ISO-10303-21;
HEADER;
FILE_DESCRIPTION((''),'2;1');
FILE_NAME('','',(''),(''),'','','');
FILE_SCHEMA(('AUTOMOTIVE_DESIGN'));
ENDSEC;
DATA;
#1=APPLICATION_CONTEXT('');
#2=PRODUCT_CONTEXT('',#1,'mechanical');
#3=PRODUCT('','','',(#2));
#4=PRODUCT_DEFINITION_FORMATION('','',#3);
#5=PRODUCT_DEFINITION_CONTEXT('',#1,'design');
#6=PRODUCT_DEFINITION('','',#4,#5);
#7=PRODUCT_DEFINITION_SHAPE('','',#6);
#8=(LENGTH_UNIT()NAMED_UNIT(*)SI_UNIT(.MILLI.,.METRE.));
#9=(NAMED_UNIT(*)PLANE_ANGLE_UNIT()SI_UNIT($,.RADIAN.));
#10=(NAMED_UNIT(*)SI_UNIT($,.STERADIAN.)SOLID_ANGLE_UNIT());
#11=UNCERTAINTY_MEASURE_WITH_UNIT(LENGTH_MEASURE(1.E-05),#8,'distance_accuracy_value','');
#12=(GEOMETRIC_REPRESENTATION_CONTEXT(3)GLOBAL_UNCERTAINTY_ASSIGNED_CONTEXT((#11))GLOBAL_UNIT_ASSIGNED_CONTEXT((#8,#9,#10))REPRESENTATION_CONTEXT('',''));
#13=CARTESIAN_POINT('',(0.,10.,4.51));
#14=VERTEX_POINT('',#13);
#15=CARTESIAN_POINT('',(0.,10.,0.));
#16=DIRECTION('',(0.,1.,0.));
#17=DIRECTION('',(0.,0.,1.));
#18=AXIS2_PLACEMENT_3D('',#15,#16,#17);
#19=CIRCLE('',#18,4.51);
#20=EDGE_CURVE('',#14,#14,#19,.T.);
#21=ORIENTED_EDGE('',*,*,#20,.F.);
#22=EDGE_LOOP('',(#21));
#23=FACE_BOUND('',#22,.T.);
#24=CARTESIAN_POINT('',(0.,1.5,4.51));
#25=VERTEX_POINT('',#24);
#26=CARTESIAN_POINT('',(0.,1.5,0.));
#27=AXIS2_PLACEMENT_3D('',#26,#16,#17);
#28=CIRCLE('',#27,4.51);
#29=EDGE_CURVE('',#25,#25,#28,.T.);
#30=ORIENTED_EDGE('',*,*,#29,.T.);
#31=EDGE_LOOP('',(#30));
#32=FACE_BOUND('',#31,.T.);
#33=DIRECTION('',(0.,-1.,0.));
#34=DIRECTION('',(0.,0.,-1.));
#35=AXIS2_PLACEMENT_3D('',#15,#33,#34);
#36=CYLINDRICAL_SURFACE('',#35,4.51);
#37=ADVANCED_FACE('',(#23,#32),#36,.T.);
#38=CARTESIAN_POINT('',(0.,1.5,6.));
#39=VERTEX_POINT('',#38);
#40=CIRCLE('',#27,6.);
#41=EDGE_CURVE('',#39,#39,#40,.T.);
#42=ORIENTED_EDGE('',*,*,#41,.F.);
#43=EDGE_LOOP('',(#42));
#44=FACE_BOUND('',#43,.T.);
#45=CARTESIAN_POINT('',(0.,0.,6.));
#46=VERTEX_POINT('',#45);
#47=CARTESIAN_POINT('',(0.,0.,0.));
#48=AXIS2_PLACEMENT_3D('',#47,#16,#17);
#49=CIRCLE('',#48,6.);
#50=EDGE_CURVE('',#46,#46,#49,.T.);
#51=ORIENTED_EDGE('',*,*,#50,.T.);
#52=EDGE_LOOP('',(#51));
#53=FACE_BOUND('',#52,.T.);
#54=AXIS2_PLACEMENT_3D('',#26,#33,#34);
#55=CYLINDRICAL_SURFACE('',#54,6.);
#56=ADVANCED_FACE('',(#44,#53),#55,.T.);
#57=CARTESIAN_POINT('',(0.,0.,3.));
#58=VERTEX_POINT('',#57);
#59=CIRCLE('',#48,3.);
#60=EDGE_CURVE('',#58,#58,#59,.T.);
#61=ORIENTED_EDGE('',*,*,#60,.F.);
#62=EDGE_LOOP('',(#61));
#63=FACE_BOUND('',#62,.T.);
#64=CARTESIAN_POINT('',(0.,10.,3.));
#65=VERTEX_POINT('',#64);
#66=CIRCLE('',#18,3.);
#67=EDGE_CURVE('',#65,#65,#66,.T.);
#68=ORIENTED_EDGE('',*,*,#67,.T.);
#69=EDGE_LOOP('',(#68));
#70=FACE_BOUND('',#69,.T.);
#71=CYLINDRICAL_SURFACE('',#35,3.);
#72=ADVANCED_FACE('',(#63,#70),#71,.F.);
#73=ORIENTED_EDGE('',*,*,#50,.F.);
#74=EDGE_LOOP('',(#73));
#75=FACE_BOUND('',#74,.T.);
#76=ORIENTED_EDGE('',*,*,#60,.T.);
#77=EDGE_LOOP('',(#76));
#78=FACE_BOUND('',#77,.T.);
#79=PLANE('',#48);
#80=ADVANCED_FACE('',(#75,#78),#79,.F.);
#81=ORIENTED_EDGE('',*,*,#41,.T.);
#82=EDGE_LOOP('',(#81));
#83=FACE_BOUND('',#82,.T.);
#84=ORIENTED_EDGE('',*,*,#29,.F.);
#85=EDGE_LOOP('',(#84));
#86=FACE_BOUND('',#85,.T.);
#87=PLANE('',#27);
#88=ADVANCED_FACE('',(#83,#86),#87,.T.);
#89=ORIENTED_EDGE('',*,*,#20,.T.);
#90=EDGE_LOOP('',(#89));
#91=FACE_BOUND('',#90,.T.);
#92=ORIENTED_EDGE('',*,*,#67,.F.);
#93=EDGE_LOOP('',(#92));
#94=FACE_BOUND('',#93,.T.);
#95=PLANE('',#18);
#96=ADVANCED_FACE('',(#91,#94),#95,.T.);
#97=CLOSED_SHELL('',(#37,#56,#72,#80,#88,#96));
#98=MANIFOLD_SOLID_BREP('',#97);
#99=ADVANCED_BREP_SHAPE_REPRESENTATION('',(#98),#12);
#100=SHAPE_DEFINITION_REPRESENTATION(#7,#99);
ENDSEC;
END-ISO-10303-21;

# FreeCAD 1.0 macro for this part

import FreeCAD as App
import Part
import Sketcher
from FreeCAD import Vector

doc = App.newDocument("Part")
body = doc.addObject("PartDesign::Body", "Body")

sketch1 = body.newObject("Sketcher::SketchObject", "Sketch")
sketch1.AttachmentSupport = (doc.getObject("XZ_Plane"), [""])
sketch1.MapMode = "FlatFace"
sketch1.addGeometry([
    Part.Circle(Vector(0, 0, 0), Vector(0, 0, 1), 4.5),
    Part.Circle(Vector(0, 0, 0), Vector(0, 0, 1), 3),
], False)
sketch1.addConstraint([
    Sketcher.Constraint("Coincident", 0, 3, -1, 1),
    Sketcher.Constraint("Coincident", 1, 3, -1, 1),
    Sketcher.Constraint("Diameter", 1, 6.0),
    Sketcher.Constraint("Diameter", 0, 9.02),
])
pad1 = body.newObject("PartDesign::Pad", "Pad")
pad1.Profile = sketch1
pad1.Length = 10
pad1.Reversed = True

sketch2 = body.newObject("Sketcher::SketchObject", "Sketch001")
sketch2.AttachmentSupport = (doc.getObject("XZ_Plane"), [""])
sketch2.MapMode = "FlatFace"
sketch2.addGeometry([
    Part.Circle(Vector(0, 0, 0), Vector(0, 0, 1), 6),
    Part.Circle(Vector(0, 0, 0), Vector(0, 0, 1), 4.5),
], False)
sketch2.addConstraint([
    Sketcher.Constraint("Coincident", 0, 3, -1, 1),
    Sketcher.Constraint("Coincident", 1, 3, -1, 1),
    Sketcher.Constraint("Diameter", 0, 12.0),
    Sketcher.Constraint("Diameter", 1, 9.02),
])
pad2 = body.newObject("PartDesign::Pad", "Pad001")
pad2.Profile = sketch2
pad2.Length = 1.5
pad2.Reversed = True

doc.recompute()
